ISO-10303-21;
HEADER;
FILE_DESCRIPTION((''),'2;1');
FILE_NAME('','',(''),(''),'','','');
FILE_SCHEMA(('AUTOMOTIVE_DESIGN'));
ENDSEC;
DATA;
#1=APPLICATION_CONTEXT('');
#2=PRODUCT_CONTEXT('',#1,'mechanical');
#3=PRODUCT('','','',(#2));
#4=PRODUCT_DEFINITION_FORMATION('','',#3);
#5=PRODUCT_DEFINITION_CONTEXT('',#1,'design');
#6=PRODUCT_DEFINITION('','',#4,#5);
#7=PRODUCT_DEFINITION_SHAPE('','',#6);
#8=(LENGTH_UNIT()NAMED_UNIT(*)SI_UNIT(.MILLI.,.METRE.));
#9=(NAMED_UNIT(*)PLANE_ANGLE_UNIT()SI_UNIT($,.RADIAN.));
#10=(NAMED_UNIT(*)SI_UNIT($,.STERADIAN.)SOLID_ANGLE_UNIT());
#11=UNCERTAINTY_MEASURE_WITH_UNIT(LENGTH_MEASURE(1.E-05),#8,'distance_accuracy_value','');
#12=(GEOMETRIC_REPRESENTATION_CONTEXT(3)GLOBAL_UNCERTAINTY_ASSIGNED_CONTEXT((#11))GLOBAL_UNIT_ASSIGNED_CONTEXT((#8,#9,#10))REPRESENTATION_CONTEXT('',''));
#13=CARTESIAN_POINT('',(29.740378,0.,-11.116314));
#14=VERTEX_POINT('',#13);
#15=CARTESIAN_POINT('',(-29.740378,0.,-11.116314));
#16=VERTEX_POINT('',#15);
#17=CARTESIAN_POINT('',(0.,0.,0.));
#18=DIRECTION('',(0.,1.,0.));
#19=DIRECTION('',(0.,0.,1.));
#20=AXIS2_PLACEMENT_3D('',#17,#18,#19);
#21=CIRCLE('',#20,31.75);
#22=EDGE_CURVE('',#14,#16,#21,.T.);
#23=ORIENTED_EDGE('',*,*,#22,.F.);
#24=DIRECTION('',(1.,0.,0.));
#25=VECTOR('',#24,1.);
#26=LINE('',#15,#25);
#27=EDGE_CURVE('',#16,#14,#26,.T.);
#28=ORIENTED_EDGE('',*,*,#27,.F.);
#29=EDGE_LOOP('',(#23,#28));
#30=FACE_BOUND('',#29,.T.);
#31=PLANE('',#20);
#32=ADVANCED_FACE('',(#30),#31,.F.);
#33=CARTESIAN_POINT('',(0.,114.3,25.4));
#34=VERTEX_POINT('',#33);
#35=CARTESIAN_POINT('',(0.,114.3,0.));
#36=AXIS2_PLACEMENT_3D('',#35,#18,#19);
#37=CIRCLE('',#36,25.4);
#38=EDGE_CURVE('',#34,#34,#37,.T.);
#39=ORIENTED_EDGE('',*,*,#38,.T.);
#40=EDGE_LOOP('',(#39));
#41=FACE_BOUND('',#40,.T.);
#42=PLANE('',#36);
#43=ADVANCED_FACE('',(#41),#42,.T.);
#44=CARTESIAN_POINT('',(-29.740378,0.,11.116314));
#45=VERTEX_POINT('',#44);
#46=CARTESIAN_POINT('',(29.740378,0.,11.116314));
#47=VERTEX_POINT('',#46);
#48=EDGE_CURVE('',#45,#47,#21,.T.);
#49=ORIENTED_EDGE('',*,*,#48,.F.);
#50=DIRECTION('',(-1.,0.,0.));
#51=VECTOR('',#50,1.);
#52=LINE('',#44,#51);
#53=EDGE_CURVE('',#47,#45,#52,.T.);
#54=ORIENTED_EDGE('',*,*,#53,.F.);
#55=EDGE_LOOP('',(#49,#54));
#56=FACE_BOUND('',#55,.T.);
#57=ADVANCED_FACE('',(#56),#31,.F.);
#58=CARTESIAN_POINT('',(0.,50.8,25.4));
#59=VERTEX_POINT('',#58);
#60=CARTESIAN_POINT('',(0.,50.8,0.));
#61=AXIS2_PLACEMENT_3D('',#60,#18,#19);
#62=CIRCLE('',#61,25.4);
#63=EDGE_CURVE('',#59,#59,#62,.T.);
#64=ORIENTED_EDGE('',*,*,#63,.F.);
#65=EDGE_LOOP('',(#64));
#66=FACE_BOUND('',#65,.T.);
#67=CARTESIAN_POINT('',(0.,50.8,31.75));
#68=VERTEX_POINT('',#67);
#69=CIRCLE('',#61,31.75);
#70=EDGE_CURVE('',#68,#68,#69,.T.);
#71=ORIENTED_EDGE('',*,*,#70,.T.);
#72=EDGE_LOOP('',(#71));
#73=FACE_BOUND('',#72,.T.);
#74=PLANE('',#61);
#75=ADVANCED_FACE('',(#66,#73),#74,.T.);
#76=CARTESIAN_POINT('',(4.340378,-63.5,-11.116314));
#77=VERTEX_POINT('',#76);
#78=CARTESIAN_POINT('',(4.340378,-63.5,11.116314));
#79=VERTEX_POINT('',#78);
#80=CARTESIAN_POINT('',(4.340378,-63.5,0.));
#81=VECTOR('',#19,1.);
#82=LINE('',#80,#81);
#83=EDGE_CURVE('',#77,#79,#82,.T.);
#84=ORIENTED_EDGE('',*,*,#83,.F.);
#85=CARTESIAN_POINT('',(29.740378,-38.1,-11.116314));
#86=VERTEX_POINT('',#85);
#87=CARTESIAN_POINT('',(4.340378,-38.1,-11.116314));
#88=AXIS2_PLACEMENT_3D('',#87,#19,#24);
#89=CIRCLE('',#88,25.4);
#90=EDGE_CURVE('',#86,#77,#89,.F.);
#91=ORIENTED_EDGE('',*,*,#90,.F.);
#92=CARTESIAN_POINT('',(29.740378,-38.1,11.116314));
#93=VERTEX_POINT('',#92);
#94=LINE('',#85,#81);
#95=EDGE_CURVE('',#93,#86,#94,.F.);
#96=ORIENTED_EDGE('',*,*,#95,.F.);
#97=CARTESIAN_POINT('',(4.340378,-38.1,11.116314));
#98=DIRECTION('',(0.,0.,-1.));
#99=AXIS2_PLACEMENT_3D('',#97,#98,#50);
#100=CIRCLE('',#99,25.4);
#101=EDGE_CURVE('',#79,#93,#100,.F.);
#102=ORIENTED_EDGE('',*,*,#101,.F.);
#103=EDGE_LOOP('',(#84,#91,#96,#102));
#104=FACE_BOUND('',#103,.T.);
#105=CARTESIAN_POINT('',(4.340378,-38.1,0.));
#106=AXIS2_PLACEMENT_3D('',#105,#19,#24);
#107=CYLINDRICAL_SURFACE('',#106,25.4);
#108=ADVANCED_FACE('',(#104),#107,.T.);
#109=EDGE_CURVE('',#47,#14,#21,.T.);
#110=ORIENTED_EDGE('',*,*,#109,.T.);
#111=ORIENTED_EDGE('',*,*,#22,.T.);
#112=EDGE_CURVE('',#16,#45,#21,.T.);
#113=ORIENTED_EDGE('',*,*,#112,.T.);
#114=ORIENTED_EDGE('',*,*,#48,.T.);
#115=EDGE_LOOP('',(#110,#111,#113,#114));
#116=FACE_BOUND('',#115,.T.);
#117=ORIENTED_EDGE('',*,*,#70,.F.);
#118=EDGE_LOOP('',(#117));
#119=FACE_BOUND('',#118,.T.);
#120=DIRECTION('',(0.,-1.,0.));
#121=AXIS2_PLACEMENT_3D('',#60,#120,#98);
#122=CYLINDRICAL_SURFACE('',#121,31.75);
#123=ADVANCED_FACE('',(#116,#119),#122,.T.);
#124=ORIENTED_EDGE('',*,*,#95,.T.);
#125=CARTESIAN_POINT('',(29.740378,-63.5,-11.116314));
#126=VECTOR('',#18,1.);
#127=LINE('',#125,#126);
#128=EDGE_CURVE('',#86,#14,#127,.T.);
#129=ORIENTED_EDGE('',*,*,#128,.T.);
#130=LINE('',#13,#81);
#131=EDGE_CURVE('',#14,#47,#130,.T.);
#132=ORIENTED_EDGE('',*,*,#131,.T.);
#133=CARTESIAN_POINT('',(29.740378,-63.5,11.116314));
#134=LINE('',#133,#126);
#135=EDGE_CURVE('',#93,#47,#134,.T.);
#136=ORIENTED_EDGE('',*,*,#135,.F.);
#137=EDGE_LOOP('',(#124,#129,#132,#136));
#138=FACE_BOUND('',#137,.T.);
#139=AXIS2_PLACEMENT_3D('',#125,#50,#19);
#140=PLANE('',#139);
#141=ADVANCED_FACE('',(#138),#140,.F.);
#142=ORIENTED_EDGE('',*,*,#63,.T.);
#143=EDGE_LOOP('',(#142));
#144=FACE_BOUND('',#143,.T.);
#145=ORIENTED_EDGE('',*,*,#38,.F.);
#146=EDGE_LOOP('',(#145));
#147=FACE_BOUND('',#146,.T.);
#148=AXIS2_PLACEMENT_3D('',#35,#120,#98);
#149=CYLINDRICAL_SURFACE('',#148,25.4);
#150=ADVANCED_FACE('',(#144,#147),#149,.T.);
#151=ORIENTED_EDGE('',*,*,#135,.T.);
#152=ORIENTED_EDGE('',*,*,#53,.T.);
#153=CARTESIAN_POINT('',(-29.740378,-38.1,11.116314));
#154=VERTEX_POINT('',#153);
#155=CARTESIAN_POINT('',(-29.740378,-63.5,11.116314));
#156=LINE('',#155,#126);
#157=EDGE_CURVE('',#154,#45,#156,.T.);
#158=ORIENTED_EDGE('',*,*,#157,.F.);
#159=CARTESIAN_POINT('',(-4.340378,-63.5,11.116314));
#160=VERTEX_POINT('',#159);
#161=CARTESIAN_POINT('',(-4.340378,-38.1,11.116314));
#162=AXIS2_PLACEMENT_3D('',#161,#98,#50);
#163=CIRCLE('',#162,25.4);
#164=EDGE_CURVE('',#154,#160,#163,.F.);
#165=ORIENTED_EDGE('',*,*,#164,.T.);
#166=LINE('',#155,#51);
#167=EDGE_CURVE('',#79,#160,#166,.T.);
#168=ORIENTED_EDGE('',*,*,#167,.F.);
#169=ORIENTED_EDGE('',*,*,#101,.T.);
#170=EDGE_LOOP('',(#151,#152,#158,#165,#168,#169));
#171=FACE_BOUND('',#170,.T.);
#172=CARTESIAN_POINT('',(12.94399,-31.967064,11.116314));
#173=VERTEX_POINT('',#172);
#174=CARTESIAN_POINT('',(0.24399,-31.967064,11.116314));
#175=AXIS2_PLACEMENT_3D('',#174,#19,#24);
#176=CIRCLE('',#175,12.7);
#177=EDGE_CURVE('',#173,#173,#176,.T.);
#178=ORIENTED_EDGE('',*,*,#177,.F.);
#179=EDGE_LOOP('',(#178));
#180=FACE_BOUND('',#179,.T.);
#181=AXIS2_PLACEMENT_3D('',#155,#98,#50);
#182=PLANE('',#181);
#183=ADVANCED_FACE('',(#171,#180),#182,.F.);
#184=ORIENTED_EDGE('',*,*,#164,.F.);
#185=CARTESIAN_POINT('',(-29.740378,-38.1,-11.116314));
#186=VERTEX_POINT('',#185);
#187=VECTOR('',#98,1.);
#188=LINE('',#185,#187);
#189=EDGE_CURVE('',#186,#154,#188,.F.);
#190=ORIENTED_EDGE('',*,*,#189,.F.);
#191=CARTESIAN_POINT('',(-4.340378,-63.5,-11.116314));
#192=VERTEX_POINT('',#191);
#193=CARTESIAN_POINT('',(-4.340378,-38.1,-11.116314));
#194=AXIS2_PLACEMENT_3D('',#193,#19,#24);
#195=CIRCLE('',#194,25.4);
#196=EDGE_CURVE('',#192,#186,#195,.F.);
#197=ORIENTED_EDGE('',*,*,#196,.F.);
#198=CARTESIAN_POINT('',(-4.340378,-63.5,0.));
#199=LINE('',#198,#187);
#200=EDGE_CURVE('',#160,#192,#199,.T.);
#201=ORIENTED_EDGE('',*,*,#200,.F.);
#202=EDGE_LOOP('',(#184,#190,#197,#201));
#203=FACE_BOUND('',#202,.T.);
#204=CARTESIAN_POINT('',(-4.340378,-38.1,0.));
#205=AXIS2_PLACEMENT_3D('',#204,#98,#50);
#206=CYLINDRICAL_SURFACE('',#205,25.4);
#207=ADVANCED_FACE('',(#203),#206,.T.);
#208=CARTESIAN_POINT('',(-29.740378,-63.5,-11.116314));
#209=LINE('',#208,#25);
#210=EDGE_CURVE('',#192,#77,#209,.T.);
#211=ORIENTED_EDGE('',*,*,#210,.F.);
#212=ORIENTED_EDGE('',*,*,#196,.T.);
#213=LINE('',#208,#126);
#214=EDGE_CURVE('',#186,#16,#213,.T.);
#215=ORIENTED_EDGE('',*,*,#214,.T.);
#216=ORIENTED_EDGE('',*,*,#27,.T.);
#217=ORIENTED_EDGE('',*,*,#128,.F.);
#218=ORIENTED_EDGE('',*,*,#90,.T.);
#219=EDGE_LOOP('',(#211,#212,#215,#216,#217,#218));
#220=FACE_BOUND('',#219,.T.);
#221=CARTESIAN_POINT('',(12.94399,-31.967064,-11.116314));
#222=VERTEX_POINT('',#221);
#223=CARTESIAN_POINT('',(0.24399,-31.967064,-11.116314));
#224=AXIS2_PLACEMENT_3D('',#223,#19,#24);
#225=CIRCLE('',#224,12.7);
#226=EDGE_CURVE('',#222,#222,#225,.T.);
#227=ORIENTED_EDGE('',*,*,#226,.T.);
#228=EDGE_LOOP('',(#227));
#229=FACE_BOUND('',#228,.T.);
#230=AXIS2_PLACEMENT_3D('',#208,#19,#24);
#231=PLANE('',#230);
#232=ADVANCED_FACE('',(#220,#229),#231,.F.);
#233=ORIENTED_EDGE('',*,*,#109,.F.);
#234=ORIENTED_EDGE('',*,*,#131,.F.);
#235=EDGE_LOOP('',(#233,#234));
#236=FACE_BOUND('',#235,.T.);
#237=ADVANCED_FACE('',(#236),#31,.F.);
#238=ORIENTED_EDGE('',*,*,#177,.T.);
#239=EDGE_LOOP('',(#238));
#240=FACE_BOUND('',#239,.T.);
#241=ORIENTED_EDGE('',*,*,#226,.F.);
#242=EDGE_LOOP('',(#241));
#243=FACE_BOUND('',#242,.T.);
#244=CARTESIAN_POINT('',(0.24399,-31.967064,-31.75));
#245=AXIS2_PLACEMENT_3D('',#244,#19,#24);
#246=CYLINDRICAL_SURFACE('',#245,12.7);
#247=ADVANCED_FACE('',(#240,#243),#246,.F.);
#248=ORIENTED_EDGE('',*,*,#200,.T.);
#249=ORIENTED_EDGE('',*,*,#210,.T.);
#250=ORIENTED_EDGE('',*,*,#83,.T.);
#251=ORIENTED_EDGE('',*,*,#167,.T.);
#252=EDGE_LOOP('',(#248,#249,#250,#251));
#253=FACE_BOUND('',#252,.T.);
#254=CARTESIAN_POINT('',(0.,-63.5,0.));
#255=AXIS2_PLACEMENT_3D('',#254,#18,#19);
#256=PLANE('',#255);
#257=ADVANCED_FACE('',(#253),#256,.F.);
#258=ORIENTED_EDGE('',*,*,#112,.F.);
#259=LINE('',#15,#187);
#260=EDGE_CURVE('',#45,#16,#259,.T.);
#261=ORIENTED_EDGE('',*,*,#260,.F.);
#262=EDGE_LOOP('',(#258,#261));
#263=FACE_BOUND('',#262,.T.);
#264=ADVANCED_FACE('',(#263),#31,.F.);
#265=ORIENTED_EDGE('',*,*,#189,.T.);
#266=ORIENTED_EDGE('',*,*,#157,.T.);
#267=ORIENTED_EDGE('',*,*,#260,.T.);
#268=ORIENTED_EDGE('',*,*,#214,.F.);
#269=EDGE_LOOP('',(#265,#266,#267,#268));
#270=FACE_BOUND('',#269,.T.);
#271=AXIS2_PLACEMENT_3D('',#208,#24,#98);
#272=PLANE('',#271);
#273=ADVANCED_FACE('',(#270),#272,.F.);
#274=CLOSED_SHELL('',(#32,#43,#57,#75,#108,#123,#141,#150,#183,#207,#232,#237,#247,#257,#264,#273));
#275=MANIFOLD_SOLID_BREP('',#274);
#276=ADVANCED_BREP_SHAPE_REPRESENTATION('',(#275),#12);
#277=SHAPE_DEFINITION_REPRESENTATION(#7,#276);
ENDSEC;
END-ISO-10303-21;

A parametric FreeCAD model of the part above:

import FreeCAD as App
import Part
import Sketcher
from FreeCAD import Vector
Q = App.Units.Quantity


def edges_at(feature, points):
    """Names of the edges that pass closest to the given points."""
    edges = feature.Shape.Edges
    near = lambda p: min(range(len(edges)), key=lambda i: edges[i].distToShape(Part.Vertex(*p))[0])
    return sorted({f"Edge{near(p) + 1}" for p in points})

doc = App.newDocument("Part")
body = doc.addObject("PartDesign::Body", "Body")

sketch1 = doc.addObject("Sketcher::SketchObject", "Sketch")
body.addObject(sketch1)
sketch1.AttachmentSupport = (doc.XZ_Plane, [""])
sketch1.MapMode = "FlatFace"
sketch1.addGeometry(Part.Circle(Vector(0, 0, 0), Vector(0, 0, 1), 32), False)
sketch1.addConstraint([
    Sketcher.Constraint("Coincident", 0, 3, -1, 1),
    Sketcher.Constraint("Diameter", 0, Q("2.5 in")),
])
pad1 = doc.addObject("PartDesign::Pad", "Pad")
body.addObject(pad1)
pad1.Profile = sketch1
pad1.Length = Q("2 in")
pad1.Reversed = True

sketch2 = doc.addObject("Sketcher::SketchObject", "Sketch001")
body.addObject(sketch2)
sketch2.AttachmentSupport = (doc.XZ_Plane, [""])
sketch2.MapMode = "FlatFace"
sketch2.AttachmentOffset = App.Placement(Vector(0, 0, -2 * 25.4), App.Rotation())
sketch2.addGeometry(Part.Circle(Vector(0, 0, 0), Vector(0, 0, 1), 25), False)
sketch2.addConstraint([
    Sketcher.Constraint("Coincident", 0, 3, -1, 1),
    Sketcher.Constraint("Diameter", 0, Q("2 in")),
])
pad2 = doc.addObject("PartDesign::Pad", "Pad001")
body.addObject(pad2)
pad2.Profile = sketch2
pad2.Length = Q("2.5 in")
pad2.Reversed = True

sketch3 = doc.addObject("Sketcher::SketchObject", "Sketch002")
body.addObject(sketch3)
sketch3.AttachmentSupport = (doc.XZ_Plane, [""])
sketch3.MapMode = "FlatFace"
sketch3.addGeometry([
    Part.LineSegment(Vector(-30, 11, 0), Vector(-30, -11, 0)),
    Part.LineSegment(Vector(-30, -11, 0), Vector(30, -11, 0)),
    Part.LineSegment(Vector(30, -11, 0), Vector(30, 11, 0)),
    Part.LineSegment(Vector(30, 11, 0), Vector(-30, 11, 0)),
], False)
sketch3.addConstraint([
    Sketcher.Constraint("Coincident", 0, 2, 1, 1),
    Sketcher.Constraint("Coincident", 1, 2, 2, 1),
    Sketcher.Constraint("Coincident", 2, 2, 3, 1),
    Sketcher.Constraint("Coincident", 3, 2, 0, 1),
    Sketcher.Constraint("Vertical", 0),
    Sketcher.Constraint("Horizontal", 1),
    Sketcher.Constraint("Vertical", 2),
    Sketcher.Constraint("Horizontal", 3),
    Sketcher.Constraint("Symmetric", 0, 2, 2, 2, -1, 1),
    Sketcher.Constraint("DistanceX", 1, 1, 1, 2, Q("59.480755 mm")),
    Sketcher.Constraint("DistanceY", 0, 2, 0, 1, Q("22.232628 mm")),
])
pad3 = doc.addObject("PartDesign::Pad", "Pad002")
body.addObject(pad3)
pad3.Profile = sketch3
pad3.Length = Q("2.5 in")

sketch4 = doc.addObject("Sketcher::SketchObject", "Sketch003")
body.addObject(sketch4)
sketch4.AttachmentSupport = (doc.XY_Plane, [""])
sketch4.MapMode = "FlatFace"
sketch4.AttachmentOffset = App.Placement(Vector(0, 0, 11.116314), App.Rotation())
sketch4.addGeometry(Part.Circle(Vector(0, -32, 0), Vector(0, 0, 1), 13), False)
sketch4.addConstraint([
    Sketcher.Constraint("Diameter", 0, Q("1 in")),
    Sketcher.Constraint("DistanceX", -1, 1, 0, 3, Q("0.24399 mm")),
    Sketcher.Constraint("DistanceY", 0, 3, -1, 1, Q("31.967064 mm")),
])
pocket1 = doc.addObject("PartDesign::Pocket", "Pocket")
body.addObject(pocket1)
pocket1.Profile = sketch4
pocket1.Type = "ThroughAll"
doc.recompute()

fillet = doc.addObject("PartDesign::Fillet", "Fillet")
body.addObject(fillet)
fillet.Base = (pocket1, edges_at(pocket1, [(-29.74, -63.5, 0)]))
fillet.Radius = Q("1 in")
doc.recompute()

fillet2 = doc.addObject("PartDesign::Fillet", "Fillet001")
body.addObject(fillet2)
fillet2.Base = (fillet, edges_at(fillet, [(29.74, -63.5, 0)]))
fillet2.Radius = Q("1 in")

doc.recompute()
